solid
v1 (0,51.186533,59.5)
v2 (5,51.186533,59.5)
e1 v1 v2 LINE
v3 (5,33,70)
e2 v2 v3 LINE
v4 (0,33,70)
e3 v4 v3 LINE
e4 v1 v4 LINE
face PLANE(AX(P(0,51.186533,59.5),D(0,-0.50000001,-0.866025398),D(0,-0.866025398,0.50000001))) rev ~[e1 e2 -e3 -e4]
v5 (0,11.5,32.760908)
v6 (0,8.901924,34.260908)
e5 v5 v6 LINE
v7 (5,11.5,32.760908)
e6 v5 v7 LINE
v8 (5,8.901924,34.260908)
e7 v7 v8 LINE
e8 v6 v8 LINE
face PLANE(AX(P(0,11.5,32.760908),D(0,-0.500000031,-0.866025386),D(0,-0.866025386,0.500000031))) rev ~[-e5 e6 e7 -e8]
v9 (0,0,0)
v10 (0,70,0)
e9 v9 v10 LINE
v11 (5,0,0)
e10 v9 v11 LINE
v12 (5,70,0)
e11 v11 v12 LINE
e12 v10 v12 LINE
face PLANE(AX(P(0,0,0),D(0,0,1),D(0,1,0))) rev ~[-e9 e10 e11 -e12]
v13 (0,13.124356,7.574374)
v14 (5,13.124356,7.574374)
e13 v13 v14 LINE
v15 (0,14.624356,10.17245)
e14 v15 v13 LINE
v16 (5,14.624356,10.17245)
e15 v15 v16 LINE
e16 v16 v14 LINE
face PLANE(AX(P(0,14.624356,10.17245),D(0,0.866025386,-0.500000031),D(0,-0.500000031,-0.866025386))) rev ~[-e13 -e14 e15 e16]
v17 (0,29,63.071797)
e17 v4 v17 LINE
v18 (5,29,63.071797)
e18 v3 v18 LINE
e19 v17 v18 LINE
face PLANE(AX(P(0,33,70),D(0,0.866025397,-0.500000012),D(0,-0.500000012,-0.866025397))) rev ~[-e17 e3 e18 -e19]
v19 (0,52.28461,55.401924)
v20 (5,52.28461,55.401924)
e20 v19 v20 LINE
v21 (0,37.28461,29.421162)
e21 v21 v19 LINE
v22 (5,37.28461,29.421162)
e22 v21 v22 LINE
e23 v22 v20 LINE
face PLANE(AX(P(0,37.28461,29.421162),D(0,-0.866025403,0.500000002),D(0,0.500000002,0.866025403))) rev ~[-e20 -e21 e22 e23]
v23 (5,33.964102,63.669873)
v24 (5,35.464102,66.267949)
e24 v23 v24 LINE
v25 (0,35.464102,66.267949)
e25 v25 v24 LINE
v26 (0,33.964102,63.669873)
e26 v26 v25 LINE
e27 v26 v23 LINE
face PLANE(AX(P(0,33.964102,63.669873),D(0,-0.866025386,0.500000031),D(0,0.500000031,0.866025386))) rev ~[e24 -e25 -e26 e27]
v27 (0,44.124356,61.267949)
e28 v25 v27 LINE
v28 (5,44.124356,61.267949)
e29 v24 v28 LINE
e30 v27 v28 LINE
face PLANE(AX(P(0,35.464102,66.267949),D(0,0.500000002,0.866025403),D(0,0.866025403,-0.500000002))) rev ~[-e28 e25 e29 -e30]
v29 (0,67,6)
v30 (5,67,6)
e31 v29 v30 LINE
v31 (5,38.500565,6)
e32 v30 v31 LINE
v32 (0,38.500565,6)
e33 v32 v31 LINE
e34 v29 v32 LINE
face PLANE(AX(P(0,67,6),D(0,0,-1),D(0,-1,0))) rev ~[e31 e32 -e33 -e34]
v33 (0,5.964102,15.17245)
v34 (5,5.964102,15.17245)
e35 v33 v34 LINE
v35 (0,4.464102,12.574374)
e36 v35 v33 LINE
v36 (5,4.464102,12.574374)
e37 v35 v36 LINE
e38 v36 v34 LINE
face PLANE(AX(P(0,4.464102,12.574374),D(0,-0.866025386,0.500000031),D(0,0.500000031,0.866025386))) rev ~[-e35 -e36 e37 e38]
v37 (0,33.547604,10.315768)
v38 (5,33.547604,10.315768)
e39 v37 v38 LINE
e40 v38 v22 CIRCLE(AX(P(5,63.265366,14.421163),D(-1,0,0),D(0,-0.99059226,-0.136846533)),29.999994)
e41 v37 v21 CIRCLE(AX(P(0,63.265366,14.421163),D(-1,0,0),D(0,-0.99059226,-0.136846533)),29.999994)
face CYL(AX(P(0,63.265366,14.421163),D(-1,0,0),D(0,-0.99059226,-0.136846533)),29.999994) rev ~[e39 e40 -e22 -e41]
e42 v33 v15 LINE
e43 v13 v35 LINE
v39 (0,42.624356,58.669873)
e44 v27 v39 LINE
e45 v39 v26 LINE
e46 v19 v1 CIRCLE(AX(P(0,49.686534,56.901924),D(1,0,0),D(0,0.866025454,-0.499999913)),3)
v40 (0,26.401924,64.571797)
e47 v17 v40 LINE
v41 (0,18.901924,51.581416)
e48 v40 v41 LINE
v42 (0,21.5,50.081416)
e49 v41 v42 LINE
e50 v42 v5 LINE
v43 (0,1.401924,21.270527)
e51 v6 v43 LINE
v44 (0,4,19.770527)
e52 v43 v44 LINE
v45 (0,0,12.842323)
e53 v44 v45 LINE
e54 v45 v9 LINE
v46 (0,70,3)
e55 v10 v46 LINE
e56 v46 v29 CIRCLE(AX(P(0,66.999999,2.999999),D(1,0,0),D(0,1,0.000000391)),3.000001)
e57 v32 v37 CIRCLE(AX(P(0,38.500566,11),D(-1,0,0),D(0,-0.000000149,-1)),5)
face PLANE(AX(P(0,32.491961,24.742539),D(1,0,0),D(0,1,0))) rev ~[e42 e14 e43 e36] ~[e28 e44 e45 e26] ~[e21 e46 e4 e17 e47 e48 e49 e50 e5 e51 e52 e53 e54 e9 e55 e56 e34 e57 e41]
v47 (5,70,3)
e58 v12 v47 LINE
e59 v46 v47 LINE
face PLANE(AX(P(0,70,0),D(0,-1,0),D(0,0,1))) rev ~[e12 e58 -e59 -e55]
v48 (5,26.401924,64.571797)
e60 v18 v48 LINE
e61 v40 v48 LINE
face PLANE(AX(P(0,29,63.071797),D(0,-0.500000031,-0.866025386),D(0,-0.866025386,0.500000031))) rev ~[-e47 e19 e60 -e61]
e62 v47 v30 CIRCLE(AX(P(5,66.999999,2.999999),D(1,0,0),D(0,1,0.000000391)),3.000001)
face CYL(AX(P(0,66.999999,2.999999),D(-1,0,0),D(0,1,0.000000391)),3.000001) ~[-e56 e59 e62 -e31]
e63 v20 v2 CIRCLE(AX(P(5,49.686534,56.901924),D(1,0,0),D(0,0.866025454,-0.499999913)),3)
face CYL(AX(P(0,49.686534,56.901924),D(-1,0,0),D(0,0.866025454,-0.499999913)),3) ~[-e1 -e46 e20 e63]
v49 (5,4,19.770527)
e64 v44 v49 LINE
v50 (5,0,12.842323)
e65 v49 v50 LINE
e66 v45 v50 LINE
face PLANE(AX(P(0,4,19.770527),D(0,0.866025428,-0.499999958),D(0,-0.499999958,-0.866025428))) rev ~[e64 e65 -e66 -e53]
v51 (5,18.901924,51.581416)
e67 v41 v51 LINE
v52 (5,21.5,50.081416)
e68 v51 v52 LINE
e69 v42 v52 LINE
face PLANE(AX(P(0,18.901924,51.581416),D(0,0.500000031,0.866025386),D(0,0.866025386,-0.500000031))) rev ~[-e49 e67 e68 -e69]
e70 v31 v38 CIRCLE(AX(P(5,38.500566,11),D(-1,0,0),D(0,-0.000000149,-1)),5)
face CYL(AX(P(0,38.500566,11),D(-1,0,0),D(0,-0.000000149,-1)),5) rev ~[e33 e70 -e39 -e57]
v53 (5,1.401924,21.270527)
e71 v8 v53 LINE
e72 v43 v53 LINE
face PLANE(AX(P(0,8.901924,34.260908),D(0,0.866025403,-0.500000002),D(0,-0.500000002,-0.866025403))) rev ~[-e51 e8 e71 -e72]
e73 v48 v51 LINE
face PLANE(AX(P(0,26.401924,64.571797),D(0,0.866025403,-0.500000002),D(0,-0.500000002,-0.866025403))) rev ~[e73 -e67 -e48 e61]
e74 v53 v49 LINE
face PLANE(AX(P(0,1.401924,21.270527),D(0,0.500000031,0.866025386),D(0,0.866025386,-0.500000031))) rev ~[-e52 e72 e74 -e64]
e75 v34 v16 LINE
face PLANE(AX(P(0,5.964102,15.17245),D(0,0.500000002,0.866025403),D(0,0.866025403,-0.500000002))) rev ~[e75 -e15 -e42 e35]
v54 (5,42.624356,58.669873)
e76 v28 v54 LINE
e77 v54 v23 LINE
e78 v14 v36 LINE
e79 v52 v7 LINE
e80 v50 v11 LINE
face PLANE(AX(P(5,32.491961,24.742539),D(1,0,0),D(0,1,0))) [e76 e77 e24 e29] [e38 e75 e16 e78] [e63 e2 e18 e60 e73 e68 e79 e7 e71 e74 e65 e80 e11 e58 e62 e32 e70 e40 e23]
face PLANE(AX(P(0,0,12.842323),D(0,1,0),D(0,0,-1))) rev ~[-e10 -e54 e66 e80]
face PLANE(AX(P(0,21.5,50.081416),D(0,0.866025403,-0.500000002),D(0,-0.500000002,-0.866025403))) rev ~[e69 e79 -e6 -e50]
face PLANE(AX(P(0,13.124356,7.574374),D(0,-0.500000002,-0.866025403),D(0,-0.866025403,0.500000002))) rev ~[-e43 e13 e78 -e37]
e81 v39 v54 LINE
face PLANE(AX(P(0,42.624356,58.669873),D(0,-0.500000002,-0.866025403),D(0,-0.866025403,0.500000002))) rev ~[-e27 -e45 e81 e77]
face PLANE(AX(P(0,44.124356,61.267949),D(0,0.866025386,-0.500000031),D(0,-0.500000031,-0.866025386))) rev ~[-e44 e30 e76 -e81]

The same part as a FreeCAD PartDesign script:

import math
import FreeCAD as App
import Part
import Sketcher
from FreeCAD import Vector
Q = App.Units.Quantity


def add_polygon(sketch, points):
    """Adds a closed chain of lines whose ends are joined by coincident constraints."""
    first, n = sketch.GeometryCount, len(points)
    for a, b in zip(points, points[1:] + points[:1]):
        sketch.addGeometry(Part.LineSegment(App.Vector(*a, 0), App.Vector(*b, 0)), False)
    for i in range(n):
        sketch.addConstraint(Sketcher.Constraint("Coincident", first + i, 2, first + (i + 1) % n, 1))

doc = App.newDocument("Part")
body = doc.addObject("PartDesign::Body", "Body")

sketch1 = body.newObject("Sketcher::SketchObject", "Sketch")
sketch1.AttachmentSupport = (doc.getObject("YZ_Plane"), [""])
sketch1.MapMode = "FlatFace"
sketch1.addGeometry(Part.LineSegment(Vector(4, 19.8, 0), Vector(0, 12.8, 0)), False)
sketch1.addGeometry(Part.LineSegment(Vector(0, 12.8, 0), Vector(0, 0, 0)), False)
sketch1.addGeometry(Part.LineSegment(Vector(0, 0, 0), Vector(70, 0, 0)), False)
sketch1.addGeometry(Part.LineSegment(Vector(70, 0, 0), Vector(70, 3, 0)), False)
sketch1.addGeometry(Part.ArcOfCircle(Part.Circle(Vector(67, 3, 0), Vector(0, 0, 1), 3), math.radians(0), math.radians(90)), False)
sketch1.addGeometry(Part.LineSegment(Vector(67, 6, 0), Vector(38.5, 6, 0)), False)
sketch1.addGeometry(Part.ArcOfCircle(Part.Circle(Vector(38.5, 11, 0), Vector(0, 0, 1), 5), math.radians(-172), math.radians(-90)), False)
sketch1.addGeometry(Part.ArcOfCircle(Part.Circle(Vector(63.3, 14.4, 0), Vector(0, 0, 1), 30), math.radians(150), math.radians(188)), False)
sketch1.addGeometry(Part.LineSegment(Vector(37.3, 29.4, 0), Vector(52.3, 55.4, 0)), False)
sketch1.addGeometry(Part.ArcOfCircle(Part.Circle(Vector(49.7, 56.9, 0), Vector(0, 0, 1), 3), math.radians(-30), math.radians(60)), False)
sketch1.addGeometry(Part.LineSegment(Vector(51.2, 59.5, 0), Vector(33, 70, 0)), False)
sketch1.addGeometry(Part.LineSegment(Vector(33, 70, 0), Vector(29, 63.1, 0)), False)
sketch1.addGeometry(Part.LineSegment(Vector(29, 63.1, 0), Vector(26.4, 64.6, 0)), False)
sketch1.addGeometry(Part.LineSegment(Vector(26.4, 64.6, 0), Vector(18.9, 51.6, 0)), False)
sketch1.addGeometry(Part.LineSegment(Vector(18.9, 51.6, 0), Vector(21.5, 50.1, 0)), False)
sketch1.addGeometry(Part.LineSegment(Vector(21.5, 50.1, 0), Vector(11.5, 32.8, 0)), False)
sketch1.addGeometry(Part.LineSegment(Vector(11.5, 32.8, 0), Vector(8.9, 34.3, 0)), False)
sketch1.addGeometry(Part.LineSegment(Vector(8.9, 34.3, 0), Vector(1.4, 21.3, 0)), False)
sketch1.addGeometry(Part.LineSegment(Vector(1.4, 21.3, 0), Vector(4, 19.8, 0)), False)
add_polygon(sketch1, [(13.1, 7.6), (4.5, 12.6), (6, 15.2), (14.6, 10.2)])
add_polygon(sketch1, [(42.6, 58.7), (34, 63.7), (35.5, 66.3), (44.1, 61.3)])
sketch1.addConstraint([
    Sketcher.Constraint("Coincident", 0, 2, 1, 1),
    Sketcher.Constraint("Coincident", 1, 2, 2, 1),
    Sketcher.Constraint("Coincident", 2, 2, 3, 1),
    Sketcher.Constraint("Tangent", 3, 2, 4, 1),
    Sketcher.Constraint("Tangent", 4, 2, 5, 1),
    Sketcher.Constraint("Tangent", 5, 2, 6, 2),
    Sketcher.Constraint("Tangent", 6, 1, 7, 2),
    Sketcher.Constraint("Tangent", 7, 1, 8, 1),
    Sketcher.Constraint("Tangent", 8, 2, 9, 1),
    Sketcher.Constraint("Tangent", 9, 2, 10, 1),
    Sketcher.Constraint("Coincident", 10, 2, 11, 1),
    Sketcher.Constraint("Coincident", 11, 2, 12, 1),
    Sketcher.Constraint("Coincident", 12, 2, 13, 1),
    Sketcher.Constraint("Coincident", 13, 2, 14, 1),
    Sketcher.Constraint("Coincident", 14, 2, 15, 1),
    Sketcher.Constraint("Coincident", 15, 2, 16, 1),
    Sketcher.Constraint("Coincident", 16, 2, 17, 1),
    Sketcher.Constraint("Coincident", 17, 2, 18, 1),
    Sketcher.Constraint("Coincident", 18, 2, 0, 1),
    Sketcher.Constraint("Vertical", 1),
    Sketcher.Constraint("Horizontal", 2),
    Sketcher.Constraint("Vertical", 3),
    Sketcher.Constraint("Horizontal", 5),
    Sketcher.Constraint("Coincident", 1, 2, -1, 1),
    Sketcher.Constraint("Equal", 4, 9),
    Sketcher.Constraint("Parallel", 0, 8),
    Sketcher.Constraint("Perpendicular", 8, 10),
    Sketcher.Constraint("Perpendicular", 10, 11),
    Sketcher.Constraint("Perpendicular", 11, 12),
    Sketcher.Constraint("Perpendicular", 12, 13),
    Sketcher.Constraint("Perpendicular", 13, 14),
    Sketcher.Constraint("Perpendicular", 14, 15),
    Sketcher.Constraint("Perpendicular", 15, 16),
    Sketcher.Constraint("Perpendicular", 16, 17),
    Sketcher.Constraint("Perpendicular", 17, 18),
    Sketcher.Constraint("Parallel", 18, 19),
    Sketcher.Constraint("Perpendicular", 19, 20),
    Sketcher.Constraint("Perpendicular", 20, 21),
    Sketcher.Constraint("Perpendicular", 21, 22),
    Sketcher.Constraint("Perpendicular", 22, 23),
    Sketcher.Constraint("Perpendicular", 23, 24),
    Sketcher.Constraint("Perpendicular", 24, 25),
    Sketcher.Constraint("Perpendicular", 25, 26),
    Sketcher.Constraint("Equal", 0, 11),
    Sketcher.Constraint("Equal", 12, 14),
    Sketcher.Constraint("Equal", 14, 16),
    Sketcher.Constraint("Equal", 13, 17),
    Sketcher.Constraint("Equal", 16, 18),
    Sketcher.Constraint("Equal", 18, 20),
    Sketcher.Constraint("Equal", 21, 23),
    Sketcher.Constraint("Equal", 22, 24),
    Sketcher.Constraint("Radius", 4, 3.000001),
    Sketcher.Constraint("Radius", 6, 5.0),
    Sketcher.Constraint("DistanceX", 2, 1, 2, 2, 70.0),
    Sketcher.Constraint("DistanceY", 3, 1, 3, 2, 3.0),
    Sketcher.Constraint("Angle", 0, Q("-119.999997 deg")),
    Sketcher.Constraint("Distance", 0, 8.000001),
    Sketcher.Constraint("Distance", 8, 30.0),
    Sketcher.Constraint("Distance", 10, 21.0),
    Sketcher.Constraint("Distance", 12, 3.0),
    Sketcher.Constraint("Distance", 13, 15.0),
    Sketcher.Constraint("Distance", 15, 20.0),
    Sketcher.Constraint("Distance", 19, 10.0),
    Sketcher.Constraint("DistanceY", -1, 1, 10, 2, 70.0),
    Sketcher.Constraint("DistanceY", 7, 3, 7, 1, 14.999999),
    Sketcher.Constraint("DistanceX", -1, 1, 19, 2, 4.464102),
    Sketcher.Constraint("DistanceX", -1, 1, 23, 2, 33.964102),
    Sketcher.Constraint("DistanceY", -1, 1, 20, 2, 15.17245),
    Sketcher.Constraint("DistanceY", -1, 1, 24, 2, 66.267949),
])
pad1 = body.newObject("PartDesign::Pad", "Pad")
pad1.Profile = sketch1
pad1.Length = 5

doc.recompute()
